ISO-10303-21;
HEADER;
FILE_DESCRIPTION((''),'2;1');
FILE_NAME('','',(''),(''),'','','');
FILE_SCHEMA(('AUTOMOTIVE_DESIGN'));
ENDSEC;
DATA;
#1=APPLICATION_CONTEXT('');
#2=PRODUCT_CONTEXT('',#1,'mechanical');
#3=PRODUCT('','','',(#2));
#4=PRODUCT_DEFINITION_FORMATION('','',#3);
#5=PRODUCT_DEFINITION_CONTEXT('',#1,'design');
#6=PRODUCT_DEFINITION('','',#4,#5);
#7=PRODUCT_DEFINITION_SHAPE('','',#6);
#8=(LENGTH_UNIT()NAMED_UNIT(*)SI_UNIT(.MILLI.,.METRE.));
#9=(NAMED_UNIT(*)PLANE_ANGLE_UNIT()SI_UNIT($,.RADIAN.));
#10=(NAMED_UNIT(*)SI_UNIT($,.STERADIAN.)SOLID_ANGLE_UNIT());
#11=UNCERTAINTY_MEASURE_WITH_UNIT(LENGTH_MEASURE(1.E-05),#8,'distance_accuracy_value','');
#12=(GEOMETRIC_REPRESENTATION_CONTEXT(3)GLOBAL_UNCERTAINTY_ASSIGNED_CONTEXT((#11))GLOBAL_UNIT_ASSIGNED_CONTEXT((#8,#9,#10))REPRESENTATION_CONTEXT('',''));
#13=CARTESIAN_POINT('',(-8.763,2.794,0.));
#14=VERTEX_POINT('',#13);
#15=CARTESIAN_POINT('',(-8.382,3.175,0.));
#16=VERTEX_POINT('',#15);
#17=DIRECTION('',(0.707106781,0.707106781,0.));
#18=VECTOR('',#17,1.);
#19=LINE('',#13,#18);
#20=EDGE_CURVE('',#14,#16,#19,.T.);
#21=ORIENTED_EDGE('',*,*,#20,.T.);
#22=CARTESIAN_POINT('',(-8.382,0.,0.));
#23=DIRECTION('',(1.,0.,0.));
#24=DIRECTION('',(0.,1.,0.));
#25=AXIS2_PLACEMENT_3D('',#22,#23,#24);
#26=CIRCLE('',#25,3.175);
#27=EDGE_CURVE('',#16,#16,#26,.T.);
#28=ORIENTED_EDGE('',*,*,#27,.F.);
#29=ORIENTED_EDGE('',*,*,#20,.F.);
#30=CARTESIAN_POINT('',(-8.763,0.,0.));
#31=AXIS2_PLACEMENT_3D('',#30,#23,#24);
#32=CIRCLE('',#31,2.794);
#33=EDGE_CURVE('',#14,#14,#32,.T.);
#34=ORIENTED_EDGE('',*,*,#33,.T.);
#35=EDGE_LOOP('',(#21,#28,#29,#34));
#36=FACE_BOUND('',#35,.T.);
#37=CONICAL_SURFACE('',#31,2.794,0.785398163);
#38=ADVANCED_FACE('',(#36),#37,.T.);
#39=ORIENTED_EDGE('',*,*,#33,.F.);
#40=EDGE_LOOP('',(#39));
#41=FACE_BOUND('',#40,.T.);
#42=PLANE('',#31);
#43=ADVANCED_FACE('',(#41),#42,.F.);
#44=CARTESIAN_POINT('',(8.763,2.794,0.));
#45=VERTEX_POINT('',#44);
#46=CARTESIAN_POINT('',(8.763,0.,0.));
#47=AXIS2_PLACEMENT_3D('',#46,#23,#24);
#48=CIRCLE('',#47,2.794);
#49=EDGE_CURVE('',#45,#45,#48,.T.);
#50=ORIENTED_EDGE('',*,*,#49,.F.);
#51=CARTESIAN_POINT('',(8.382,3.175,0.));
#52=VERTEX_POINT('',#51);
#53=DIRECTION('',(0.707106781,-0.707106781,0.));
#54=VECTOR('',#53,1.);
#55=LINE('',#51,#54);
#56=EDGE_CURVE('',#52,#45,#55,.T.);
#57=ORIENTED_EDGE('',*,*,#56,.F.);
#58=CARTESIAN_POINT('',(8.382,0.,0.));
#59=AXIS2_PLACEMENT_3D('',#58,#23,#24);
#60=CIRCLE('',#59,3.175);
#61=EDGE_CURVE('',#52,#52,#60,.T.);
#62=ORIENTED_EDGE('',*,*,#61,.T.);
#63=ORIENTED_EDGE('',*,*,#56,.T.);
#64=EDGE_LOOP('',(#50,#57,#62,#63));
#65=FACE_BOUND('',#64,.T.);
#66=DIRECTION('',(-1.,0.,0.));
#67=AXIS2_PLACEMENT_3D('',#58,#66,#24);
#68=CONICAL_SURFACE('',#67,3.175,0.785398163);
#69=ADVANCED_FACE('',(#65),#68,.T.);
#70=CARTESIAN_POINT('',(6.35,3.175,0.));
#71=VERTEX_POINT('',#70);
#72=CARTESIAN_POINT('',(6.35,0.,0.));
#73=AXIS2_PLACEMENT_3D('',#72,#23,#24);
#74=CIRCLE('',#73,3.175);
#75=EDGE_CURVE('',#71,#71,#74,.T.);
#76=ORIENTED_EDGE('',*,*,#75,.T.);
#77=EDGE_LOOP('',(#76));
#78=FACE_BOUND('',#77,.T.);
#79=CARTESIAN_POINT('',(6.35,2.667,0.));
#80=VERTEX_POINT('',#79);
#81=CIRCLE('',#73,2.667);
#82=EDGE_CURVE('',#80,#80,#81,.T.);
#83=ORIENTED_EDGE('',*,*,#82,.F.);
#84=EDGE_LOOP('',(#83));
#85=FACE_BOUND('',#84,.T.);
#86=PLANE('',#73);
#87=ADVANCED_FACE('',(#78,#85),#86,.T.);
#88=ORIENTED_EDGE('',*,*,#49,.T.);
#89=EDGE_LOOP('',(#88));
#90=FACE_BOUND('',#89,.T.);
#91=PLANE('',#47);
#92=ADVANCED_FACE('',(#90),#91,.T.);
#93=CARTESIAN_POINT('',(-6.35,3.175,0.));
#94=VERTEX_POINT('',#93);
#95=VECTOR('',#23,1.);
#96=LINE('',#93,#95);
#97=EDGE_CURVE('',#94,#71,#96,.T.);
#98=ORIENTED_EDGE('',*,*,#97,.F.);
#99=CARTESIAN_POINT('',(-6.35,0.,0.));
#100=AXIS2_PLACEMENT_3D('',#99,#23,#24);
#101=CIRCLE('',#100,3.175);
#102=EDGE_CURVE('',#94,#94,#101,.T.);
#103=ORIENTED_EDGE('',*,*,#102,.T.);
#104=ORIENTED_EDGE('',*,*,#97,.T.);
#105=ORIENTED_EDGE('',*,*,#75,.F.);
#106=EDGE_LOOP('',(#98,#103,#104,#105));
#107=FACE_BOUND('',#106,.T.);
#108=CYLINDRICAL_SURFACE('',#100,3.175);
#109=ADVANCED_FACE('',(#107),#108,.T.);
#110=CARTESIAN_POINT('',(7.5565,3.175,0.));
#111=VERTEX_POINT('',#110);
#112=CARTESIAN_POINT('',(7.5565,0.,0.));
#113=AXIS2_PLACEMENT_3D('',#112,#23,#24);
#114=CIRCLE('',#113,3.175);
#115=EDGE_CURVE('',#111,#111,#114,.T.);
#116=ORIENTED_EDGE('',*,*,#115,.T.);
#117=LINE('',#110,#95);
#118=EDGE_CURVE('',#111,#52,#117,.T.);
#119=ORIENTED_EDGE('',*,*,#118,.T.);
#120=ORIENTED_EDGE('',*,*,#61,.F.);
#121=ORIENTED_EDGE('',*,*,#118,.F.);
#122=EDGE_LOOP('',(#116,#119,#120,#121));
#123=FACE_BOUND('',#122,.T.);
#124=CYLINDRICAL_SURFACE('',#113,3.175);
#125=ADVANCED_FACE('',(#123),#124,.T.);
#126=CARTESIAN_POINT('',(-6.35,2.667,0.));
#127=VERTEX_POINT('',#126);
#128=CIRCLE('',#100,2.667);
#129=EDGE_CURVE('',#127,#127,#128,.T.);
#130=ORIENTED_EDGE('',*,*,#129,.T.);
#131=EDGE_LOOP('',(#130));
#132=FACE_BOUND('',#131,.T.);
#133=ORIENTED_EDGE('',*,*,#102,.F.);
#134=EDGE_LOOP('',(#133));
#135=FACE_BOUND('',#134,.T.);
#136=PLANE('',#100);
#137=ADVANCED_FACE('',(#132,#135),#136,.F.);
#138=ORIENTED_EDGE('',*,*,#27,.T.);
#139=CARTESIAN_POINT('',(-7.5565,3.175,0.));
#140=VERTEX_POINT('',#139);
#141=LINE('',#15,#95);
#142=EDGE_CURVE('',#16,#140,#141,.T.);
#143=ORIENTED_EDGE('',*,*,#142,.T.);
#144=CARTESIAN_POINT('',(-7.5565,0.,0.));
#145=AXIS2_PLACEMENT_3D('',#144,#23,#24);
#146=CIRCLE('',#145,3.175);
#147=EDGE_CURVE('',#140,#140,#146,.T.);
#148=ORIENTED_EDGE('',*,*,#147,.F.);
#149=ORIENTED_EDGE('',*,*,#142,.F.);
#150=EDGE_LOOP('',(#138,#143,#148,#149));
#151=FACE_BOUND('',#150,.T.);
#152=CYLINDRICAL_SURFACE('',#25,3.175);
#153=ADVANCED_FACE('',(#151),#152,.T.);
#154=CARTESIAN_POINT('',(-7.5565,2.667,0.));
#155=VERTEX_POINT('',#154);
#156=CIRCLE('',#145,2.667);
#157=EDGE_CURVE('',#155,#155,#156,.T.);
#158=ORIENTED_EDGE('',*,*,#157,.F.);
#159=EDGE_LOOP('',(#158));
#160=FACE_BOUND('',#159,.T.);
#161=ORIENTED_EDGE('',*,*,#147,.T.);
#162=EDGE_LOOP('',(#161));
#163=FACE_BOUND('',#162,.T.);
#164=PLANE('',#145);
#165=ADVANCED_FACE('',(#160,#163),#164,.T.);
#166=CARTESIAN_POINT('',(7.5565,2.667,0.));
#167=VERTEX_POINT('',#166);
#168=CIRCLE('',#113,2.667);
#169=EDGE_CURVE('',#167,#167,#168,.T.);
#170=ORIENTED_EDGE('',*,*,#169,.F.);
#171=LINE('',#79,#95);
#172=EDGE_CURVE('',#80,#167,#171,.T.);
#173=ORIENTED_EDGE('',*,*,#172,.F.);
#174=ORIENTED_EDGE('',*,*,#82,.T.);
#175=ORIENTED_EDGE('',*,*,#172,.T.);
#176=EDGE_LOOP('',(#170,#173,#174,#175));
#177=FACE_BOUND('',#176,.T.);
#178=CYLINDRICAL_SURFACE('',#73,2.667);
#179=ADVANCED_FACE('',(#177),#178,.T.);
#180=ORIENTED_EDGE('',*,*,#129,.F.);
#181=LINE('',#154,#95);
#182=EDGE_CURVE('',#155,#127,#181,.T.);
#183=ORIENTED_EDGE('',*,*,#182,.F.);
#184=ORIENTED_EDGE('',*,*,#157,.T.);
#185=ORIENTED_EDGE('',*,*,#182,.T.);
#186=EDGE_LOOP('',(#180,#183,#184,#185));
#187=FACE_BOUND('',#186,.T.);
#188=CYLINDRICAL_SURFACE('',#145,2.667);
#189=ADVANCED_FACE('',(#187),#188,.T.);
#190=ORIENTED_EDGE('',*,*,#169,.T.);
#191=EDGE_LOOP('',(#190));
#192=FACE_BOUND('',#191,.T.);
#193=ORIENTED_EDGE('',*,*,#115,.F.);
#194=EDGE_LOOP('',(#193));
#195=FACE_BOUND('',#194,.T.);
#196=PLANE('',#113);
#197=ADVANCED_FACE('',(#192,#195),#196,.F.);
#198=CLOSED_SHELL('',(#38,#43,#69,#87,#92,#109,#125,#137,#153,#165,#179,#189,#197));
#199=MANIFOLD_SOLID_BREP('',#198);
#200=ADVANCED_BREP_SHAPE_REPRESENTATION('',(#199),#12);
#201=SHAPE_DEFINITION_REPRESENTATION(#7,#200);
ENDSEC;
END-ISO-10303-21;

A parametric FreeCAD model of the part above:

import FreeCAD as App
import Part
import Sketcher
from FreeCAD import Vector
Q = App.Units.Quantity

doc = App.newDocument("Part")
body = doc.addObject("PartDesign::Body", "Body")

# Sketch on XY plane
sketch1 = doc.addObject("Sketcher::SketchObject", "Sketch")
body.addObject(sketch1)
sketch1.AttachmentSupport = (doc.XY_Plane, [""])
sketch1.MapMode = "FlatFace"
sketch1.addGeometry([
    Part.LineSegment(Vector(-8.763, 0, 0), Vector(8.763, 0, 0)),  # 0
    Part.LineSegment(Vector(8.763, 0, 0), Vector(8.763, 2.794, 0)),  # 1
    Part.LineSegment(Vector(8.763, 2.794, 0), Vector(8.382, 3.175, 0)),  # 2
    Part.LineSegment(Vector(8.382, 3.175, 0), Vector(7.5565, 3.175, 0)),  # 3
    Part.LineSegment(Vector(7.5565, 3.175, 0), Vector(7.5565, 2.667, 0)),  # 4
    Part.LineSegment(Vector(7.5565, 2.667, 0), Vector(6.35, 2.667, 0)),  # 5
    Part.LineSegment(Vector(6.35, 2.667, 0), Vector(6.35, 3.175, 0)),  # 6
    Part.LineSegment(Vector(6.35, 3.175, 0), Vector(-6.35, 3.175, 0)),  # 7
    Part.LineSegment(Vector(-6.35, 3.175, 0), Vector(-6.35, 2.667, 0)),  # 8
    Part.LineSegment(Vector(-6.35, 2.667, 0), Vector(-7.5565, 2.667, 0)),  # 9
    Part.LineSegment(Vector(-7.5565, 2.667, 0), Vector(-7.5565, 3.175, 0)),  # 10
    Part.LineSegment(Vector(-7.5565, 3.175, 0), Vector(-8.382, 3.175, 0)),  # 11
    Part.LineSegment(Vector(-8.382, 3.175, 0), Vector(-8.763, 2.794, 0)),  # 12
    Part.LineSegment(Vector(-8.763, 2.794, 0), Vector(-8.763, 0, 0)),  # 13
], False)
sketch1.addConstraint([
    Sketcher.Constraint("Coincident", 0, 2, 1, 1),
    Sketcher.Constraint("Coincident", 1, 2, 2, 1),
    Sketcher.Constraint("Coincident", 2, 2, 3, 1),
    Sketcher.Constraint("Coincident", 3, 2, 4, 1),
    Sketcher.Constraint("Coincident", 4, 2, 5, 1),
    Sketcher.Constraint("Coincident", 5, 2, 6, 1),
    Sketcher.Constraint("Coincident", 6, 2, 7, 1),
    Sketcher.Constraint("Coincident", 7, 2, 8, 1),
    Sketcher.Constraint("Coincident", 8, 2, 9, 1),
    Sketcher.Constraint("Coincident", 9, 2, 10, 1),
    Sketcher.Constraint("Coincident", 10, 2, 11, 1),
    Sketcher.Constraint("Coincident", 11, 2, 12, 1),
    Sketcher.Constraint("Coincident", 12, 2, 13, 1),
    Sketcher.Constraint("Coincident", 13, 2, 0, 1),
    Sketcher.Constraint("Horizontal", 0),
    Sketcher.Constraint("Vertical", 1),
    Sketcher.Constraint("Horizontal", 3),
    Sketcher.Constraint("Vertical", 4),
    Sketcher.Constraint("Horizontal", 5),
    Sketcher.Constraint("Vertical", 6),
    Sketcher.Constraint("Horizontal", 7),
    Sketcher.Constraint("Vertical", 8),
    Sketcher.Constraint("Horizontal", 9),
    Sketcher.Constraint("Vertical", 10),
    Sketcher.Constraint("Horizontal", 11),
    Sketcher.Constraint("Vertical", 13),
    Sketcher.Constraint("Symmetric", 0, 2, 13, 2, -1, 1),
    Sketcher.Constraint("Symmetric", 5, 2, 8, 2, -2),
    Sketcher.Constraint("Symmetric", 3, 2, 10, 2, -2),
    Sketcher.Constraint("Perpendicular", 2, 12),
    Sketcher.Constraint("Horizontal", 3, 2, 6, 2),
    Sketcher.Constraint("Horizontal", 1, 2, 12, 2),
    Sketcher.Constraint("Equal", 3, 11),
    Sketcher.Constraint("DistanceX", 7, 2, 7, 1, Q("0.5 in")),
    Sketcher.Constraint("DistanceX", 0, 1, 0, 2, Q("0.69 in")),
    Sketcher.Constraint("DistanceY", 1, 1, 1, 2, Q("0.11 in")),
    Sketcher.Constraint("DistanceY", 4, 2, 4, 1, Q("0.02 in")),
    Sketcher.Constraint("DistanceX", -1, 1, 2, 2, Q("0.33 in")),
    Sketcher.Constraint("DistanceX", 3, 2, 3, 1, Q("0.0325 in")),
])
revolution = doc.addObject("PartDesign::Revolution", "Revolution")
body.addObject(revolution)
revolution.Profile = sketch1
revolution.ReferenceAxis = (sketch1, ["H_Axis"])
revolution.Angle = 360

doc.recompute()
